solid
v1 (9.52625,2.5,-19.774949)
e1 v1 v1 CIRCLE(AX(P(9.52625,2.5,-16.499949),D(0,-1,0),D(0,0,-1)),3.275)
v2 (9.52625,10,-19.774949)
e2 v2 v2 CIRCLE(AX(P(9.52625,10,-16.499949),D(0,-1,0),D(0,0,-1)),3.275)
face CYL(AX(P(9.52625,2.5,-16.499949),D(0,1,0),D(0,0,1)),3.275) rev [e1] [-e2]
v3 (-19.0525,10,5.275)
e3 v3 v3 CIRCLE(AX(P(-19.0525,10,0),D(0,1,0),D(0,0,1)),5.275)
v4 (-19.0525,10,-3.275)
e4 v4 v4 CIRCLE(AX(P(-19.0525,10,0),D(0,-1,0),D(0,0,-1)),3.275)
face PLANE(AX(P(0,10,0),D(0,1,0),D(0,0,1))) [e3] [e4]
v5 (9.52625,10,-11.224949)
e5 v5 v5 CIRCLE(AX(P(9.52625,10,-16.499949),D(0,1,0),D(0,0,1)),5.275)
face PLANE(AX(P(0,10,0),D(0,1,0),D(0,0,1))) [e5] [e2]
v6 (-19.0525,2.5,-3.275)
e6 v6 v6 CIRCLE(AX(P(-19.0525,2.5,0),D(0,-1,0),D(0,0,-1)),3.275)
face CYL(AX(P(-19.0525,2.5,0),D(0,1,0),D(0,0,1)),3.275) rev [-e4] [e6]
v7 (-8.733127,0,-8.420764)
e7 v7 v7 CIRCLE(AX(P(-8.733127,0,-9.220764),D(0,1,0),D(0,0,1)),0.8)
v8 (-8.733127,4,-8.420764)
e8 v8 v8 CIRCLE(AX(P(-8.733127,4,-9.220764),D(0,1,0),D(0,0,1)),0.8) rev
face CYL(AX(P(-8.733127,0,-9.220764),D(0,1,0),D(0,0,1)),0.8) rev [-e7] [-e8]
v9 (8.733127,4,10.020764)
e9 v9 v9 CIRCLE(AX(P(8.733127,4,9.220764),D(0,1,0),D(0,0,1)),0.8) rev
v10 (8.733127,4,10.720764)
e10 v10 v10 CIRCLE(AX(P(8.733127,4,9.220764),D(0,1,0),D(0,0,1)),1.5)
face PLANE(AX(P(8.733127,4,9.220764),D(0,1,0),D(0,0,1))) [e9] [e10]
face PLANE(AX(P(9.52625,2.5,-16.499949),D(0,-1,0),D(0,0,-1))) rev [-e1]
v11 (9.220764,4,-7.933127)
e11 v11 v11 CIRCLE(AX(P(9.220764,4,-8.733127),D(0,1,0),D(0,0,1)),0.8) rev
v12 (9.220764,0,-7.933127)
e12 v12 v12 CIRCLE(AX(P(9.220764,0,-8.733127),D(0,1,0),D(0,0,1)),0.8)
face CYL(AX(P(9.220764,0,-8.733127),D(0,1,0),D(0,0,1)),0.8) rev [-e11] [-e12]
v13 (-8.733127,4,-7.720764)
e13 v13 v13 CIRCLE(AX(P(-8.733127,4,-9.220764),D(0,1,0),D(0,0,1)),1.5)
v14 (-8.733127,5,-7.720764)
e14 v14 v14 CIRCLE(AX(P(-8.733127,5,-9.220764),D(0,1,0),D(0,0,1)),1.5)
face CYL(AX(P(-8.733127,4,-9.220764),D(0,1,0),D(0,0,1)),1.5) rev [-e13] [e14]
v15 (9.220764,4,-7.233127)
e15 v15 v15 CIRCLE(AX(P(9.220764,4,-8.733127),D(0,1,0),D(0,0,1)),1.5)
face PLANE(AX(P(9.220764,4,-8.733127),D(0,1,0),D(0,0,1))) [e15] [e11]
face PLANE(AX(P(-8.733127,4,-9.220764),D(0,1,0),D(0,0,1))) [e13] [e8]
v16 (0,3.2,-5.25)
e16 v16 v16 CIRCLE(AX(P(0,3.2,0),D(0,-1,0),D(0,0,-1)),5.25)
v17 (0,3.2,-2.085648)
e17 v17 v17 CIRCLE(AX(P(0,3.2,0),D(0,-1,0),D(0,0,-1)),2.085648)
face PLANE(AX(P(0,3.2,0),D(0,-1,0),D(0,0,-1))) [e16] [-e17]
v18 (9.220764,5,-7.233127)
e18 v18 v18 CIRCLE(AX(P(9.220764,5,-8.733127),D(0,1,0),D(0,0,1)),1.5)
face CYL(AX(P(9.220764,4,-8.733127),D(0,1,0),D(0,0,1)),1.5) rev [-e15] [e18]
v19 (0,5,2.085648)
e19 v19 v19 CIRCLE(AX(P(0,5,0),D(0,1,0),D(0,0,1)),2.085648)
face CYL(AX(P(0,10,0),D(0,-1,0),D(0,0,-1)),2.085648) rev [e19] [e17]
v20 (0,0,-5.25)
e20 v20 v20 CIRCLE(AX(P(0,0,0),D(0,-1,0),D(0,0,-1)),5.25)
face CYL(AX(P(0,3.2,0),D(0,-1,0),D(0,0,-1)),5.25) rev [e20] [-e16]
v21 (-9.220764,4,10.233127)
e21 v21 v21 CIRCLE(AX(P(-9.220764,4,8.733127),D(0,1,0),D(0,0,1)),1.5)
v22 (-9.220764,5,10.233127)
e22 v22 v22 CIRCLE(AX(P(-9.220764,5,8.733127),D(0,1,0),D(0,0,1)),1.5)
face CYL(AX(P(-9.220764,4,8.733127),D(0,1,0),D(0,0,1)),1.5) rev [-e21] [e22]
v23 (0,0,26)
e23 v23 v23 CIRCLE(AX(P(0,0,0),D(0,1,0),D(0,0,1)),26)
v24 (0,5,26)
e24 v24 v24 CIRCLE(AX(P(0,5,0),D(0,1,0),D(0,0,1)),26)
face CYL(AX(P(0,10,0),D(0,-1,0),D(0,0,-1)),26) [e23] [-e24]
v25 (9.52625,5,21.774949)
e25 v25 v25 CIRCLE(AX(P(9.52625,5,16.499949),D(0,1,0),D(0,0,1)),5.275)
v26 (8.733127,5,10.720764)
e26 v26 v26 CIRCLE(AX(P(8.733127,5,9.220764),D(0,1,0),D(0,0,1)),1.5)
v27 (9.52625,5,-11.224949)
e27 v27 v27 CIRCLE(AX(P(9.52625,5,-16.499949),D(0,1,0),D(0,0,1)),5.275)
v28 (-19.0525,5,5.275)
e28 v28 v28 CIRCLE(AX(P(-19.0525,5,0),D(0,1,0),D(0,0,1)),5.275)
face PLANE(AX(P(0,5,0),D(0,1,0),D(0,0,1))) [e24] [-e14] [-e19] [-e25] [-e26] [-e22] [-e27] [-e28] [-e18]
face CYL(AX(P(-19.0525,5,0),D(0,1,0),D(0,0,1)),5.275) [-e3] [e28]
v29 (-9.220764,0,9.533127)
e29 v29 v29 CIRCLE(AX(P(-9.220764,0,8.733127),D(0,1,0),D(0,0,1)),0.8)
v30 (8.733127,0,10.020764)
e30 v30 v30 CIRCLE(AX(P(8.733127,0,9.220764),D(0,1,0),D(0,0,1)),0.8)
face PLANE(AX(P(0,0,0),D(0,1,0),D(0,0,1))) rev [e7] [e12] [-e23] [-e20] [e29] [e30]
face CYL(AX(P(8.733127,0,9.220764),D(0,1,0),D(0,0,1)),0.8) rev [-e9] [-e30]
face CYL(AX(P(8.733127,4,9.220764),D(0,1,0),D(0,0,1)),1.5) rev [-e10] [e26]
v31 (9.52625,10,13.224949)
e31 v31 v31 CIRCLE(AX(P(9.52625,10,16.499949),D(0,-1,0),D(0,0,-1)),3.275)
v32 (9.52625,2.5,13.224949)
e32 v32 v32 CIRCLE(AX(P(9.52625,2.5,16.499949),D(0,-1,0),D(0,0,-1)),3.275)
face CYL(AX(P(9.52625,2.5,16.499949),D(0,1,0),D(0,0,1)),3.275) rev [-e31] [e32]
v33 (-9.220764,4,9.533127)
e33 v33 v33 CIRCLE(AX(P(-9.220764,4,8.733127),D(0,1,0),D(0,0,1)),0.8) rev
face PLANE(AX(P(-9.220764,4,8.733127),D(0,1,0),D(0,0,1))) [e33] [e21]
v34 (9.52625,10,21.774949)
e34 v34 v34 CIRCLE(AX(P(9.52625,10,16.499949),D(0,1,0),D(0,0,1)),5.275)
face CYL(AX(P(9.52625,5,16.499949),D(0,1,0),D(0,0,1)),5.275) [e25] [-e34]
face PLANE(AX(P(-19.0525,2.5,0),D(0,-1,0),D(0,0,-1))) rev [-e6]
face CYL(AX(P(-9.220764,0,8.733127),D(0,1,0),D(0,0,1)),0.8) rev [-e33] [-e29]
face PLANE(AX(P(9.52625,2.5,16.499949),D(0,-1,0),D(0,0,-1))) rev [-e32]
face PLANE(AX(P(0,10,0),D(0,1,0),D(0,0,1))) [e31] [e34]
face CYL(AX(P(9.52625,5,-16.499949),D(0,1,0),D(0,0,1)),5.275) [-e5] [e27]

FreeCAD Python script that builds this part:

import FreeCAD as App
import Part
import Sketcher
Q = App.Units.Quantity

doc = App.newDocument("Part")
body = doc.addObject("PartDesign::Body", "Body")

sketch1 = doc.addObject("Sketcher::SketchObject", "Sketch")
body.addObject(sketch1)
sketch1.AttachmentSupport = (doc.XZ_Plane, [""])
sketch1.MapMode = "FlatFace"
sketch1.addGeometry([
    Part.Circle(App.Vector(0, 0, 0), App.Vector(0, 0, 1), 26),
    Part.Circle(App.Vector(0, 0, 0), App.Vector(0, 0, 1), 2.1),
], False)
sketch1.addConstraint([
    Sketcher.Constraint("Coincident", 0, 3, -1, 1),
    Sketcher.Constraint("Coincident", 1, 3, -1, 1),
    Sketcher.Constraint("Diameter", 0, Q("52 mm")),
    Sketcher.Constraint("Diameter", 1, Q("4.171296 mm")),
])
pad1 = doc.addObject("PartDesign::Pad", "Pad")
body.addObject(pad1)
pad1.Profile = sketch1
pad1.Length = 10
pad1.Reversed = True

sketch2 = doc.addObject("Sketcher::SketchObject", "Sketch001")
body.addObject(sketch2)
sketch2.AttachmentSupport = (doc.XZ_Plane, [""])
sketch2.MapMode = "FlatFace"
sketch2.AttachmentOffset = App.Placement(App.Vector(0, 0, -10), App.Rotation())
sketch2.addGeometry([
    Part.Circle(App.Vector(9.5, -16.5, 0), App.Vector(0, 0, 1), 3.3),
    Part.Circle(App.Vector(9.5, 16.5, 0), App.Vector(0, 0, 1), 3.3),
    Part.Circle(App.Vector(-19.1, 0, 0), App.Vector(0, 0, 1), 3.3),
], False)
sketch2.addConstraint([
    Sketcher.Constraint("Equal", 0, 1),
    Sketcher.Constraint("Equal", 1, 2),
    Sketcher.Constraint("Symmetric", 0, 3, 1, 3, -1),
    Sketcher.Constraint("PointOnObject", 2, 3, -1),
    Sketcher.Constraint("Diameter", 0, Q("6.55 mm")),
    Sketcher.Constraint("DistanceX", 2, 3, -1, 1, Q("19.0525 mm")),
    Sketcher.Constraint("DistanceY", 0, 3, 1, 3, Q("32.999898 mm")),
    Sketcher.Constraint("DistanceX", -1, 1, 0, 3, Q("9.52625 mm")),
])
pocket1 = doc.addObject("PartDesign::Pocket", "Pocket")
body.addObject(pocket1)
pocket1.Profile = sketch2
pocket1.Length = 7.5
pocket1.Reversed = True

sketch3 = doc.addObject("Sketcher::SketchObject", "Sketch002")
body.addObject(sketch3)
sketch3.AttachmentSupport = (doc.XZ_Plane, [""])
sketch3.MapMode = "FlatFace"
sketch3.AttachmentOffset = App.Placement(App.Vector(0, 0, -5), App.Rotation())
sketch3.addGeometry([
    Part.Circle(App.Vector(0, 0, 0), App.Vector(0, 0, 1), 26),
    Part.Circle(App.Vector(-19, 0, 0), App.Vector(0, 0, 1), 5),
    Part.Circle(App.Vector(10, -16, 0), App.Vector(0, 0, 1), 5),
    Part.Circle(App.Vector(10, 16, 0), App.Vector(0, 0, 1), 5),
], False)
sketch3.addConstraint([
    Sketcher.Constraint("Coincident", 0, 3, -1, 1),
    Sketcher.Constraint("Equal", 1, 2),
    Sketcher.Constraint("Equal", 2, 3),
    Sketcher.Constraint("Symmetric", 2, 3, 3, 3, -1),
    Sketcher.Constraint("PointOnObject", 1, 3, -1),
    Sketcher.Constraint("Diameter", 0, Q("52 mm")),
    Sketcher.Constraint("Diameter", 1, Q("10.55 mm")),
    Sketcher.Constraint("DistanceX", 1, 3, -1, 1, Q("19.0525 mm")),
    Sketcher.Constraint("DistanceY", 2, 3, 3, 3, Q("32.999898 mm")),
    Sketcher.Constraint("DistanceX", -1, 1, 2, 3, Q("9.52625 mm")),
])
pocket2 = doc.addObject("PartDesign::Pocket", "Pocket001")
body.addObject(pocket2)
pocket2.Profile = sketch3
pocket2.Length = 5

sketch4 = doc.addObject("Sketcher::SketchObject", "Sketch003")
body.addObject(sketch4)
sketch4.AttachmentSupport = (doc.XZ_Plane, [""])
sketch4.MapMode = "FlatFace"
sketch4.addGeometry(Part.Circle(App.Vector(0, 0, 0), App.Vector(0, 0, 1), 5), False)
sketch4.addConstraint([
    Sketcher.Constraint("Coincident", 0, 3, -1, 1),
    Sketcher.Constraint("Diameter", 0, Q("10.5 mm")),
])
pocket3 = doc.addObject("PartDesign::Pocket", "Pocket002")
body.addObject(pocket3)
pocket3.Profile = sketch4
pocket3.Length = 3.2

sketch5 = doc.addObject("Sketcher::SketchObject", "Sketch004")
body.addObject(sketch5)
sketch5.AttachmentSupport = (doc.XZ_Plane, [""])
sketch5.MapMode = "FlatFace"
sketch5.AttachmentOffset = App.Placement(App.Vector(0, 0, -5), App.Rotation())
sketch5.addGeometry([
    Part.Circle(App.Vector(-8.7, -9.2, 0), App.Vector(0, 0, 1), 0.8),
    Part.Circle(App.Vector(9.2, -8.7, 0), App.Vector(0, 0, 1), 0.8),
    Part.Circle(App.Vector(8.7, 9.2, 0), App.Vector(0, 0, 1), 0.8),
    Part.Circle(App.Vector(-9.2, 8.7, 0), App.Vector(0, 0, 1), 0.8),
], False)
sketch5.addConstraint([
    Sketcher.Constraint("Equal", 0, 1),
    Sketcher.Constraint("Equal", 1, 2),
    Sketcher.Constraint("Equal", 2, 3),
    Sketcher.Constraint("Symmetric", 0, 3, 2, 3, -1, 1),
    Sketcher.Constraint("Symmetric", 1, 3, 3, 3, -1, 1),
    Sketcher.Constraint("Diameter", 0, Q("1.6 mm")),
    Sketcher.Constraint("DistanceX", 0, 3, 1, 3, Q("17.953891 mm")),
    Sketcher.Constraint("DistanceY", 1, 3, 2, 3, Q("17.953891 mm")),
    Sketcher.Constraint("DistanceX", 0, 3, -1, 1, Q("8.733127 mm")),
    Sketcher.Constraint("DistanceY", 0, 3, -1, 1, Q("9.220764 mm")),
])
pocket4 = doc.addObject("PartDesign::Pocket", "Pocket003")
body.addObject(pocket4)
pocket4.Profile = sketch5
pocket4.Type = "ThroughAll"
pocket4.Midplane = True

sketch6 = doc.addObject("Sketcher::SketchObject", "Sketch005")
body.addObject(sketch6)
sketch6.AttachmentSupport = (doc.XZ_Plane, [""])
sketch6.MapMode = "FlatFace"
sketch6.AttachmentOffset = App.Placement(App.Vector(0, 0, -5), App.Rotation())
sketch6.addGeometry([
    Part.Circle(App.Vector(-8.7, -9.2, 0), App.Vector(0, 0, 1), 1.5),
    Part.Circle(App.Vector(9.2, -8.7, 0), App.Vector(0, 0, 1), 1.5),
    Part.Circle(App.Vector(8.7, 9.2, 0), App.Vector(0, 0, 1), 1.5),
    Part.Circle(App.Vector(-9.2, 8.7, 0), App.Vector(0, 0, 1), 1.5),
], False)
sketch6.addConstraint([
    Sketcher.Constraint("Equal", 0, 1),
    Sketcher.Constraint("Equal", 1, 2),
    Sketcher.Constraint("Equal", 2, 3),
    Sketcher.Constraint("Symmetric", 0, 3, 2, 3, -1, 1),
    Sketcher.Constraint("Symmetric", 1, 3, 3, 3, -1, 1),
    Sketcher.Constraint("Diameter", 0, Q("3 mm")),
    Sketcher.Constraint("DistanceX", 0, 3, 1, 3, Q("17.953891 mm")),
    Sketcher.Constraint("DistanceY", 1, 3, 2, 3, Q("17.953891 mm")),
    Sketcher.Constraint("DistanceX", 0, 3, -1, 1, Q("8.733127 mm")),
    Sketcher.Constraint("DistanceY", 0, 3, -1, 1, Q("9.220764 mm")),
])
pocket5 = doc.addObject("PartDesign::Pocket", "Pocket004")
body.addObject(pocket5)
pocket5.Profile = sketch6
pocket5.Length = 1
pocket5.Reversed = True

doc.recompute()
